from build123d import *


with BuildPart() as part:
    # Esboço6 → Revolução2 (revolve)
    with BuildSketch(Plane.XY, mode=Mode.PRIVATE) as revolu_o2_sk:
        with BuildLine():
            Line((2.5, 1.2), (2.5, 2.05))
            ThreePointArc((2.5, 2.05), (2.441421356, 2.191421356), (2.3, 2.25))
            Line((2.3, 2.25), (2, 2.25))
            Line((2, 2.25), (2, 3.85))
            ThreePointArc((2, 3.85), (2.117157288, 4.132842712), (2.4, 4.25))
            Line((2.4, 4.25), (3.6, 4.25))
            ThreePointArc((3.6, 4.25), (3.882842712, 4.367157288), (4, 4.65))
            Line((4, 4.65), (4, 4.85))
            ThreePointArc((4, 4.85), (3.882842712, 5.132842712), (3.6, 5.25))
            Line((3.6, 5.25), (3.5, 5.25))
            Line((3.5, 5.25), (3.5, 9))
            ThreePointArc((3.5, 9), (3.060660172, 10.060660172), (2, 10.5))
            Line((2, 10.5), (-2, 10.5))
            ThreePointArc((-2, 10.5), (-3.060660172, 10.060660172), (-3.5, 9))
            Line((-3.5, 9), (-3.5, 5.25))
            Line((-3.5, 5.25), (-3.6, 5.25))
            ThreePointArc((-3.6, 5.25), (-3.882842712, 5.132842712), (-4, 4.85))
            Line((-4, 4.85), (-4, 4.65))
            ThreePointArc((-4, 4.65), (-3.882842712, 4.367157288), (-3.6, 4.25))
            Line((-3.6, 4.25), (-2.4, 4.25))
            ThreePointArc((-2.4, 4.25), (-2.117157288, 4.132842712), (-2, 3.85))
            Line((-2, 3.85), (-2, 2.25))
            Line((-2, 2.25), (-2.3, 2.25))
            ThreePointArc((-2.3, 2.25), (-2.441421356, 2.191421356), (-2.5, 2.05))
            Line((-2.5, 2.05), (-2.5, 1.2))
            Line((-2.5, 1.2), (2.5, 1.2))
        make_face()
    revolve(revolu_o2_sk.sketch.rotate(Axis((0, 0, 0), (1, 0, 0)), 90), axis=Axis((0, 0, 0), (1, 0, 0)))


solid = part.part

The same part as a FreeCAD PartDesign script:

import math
import FreeCAD as App
import Part
import Sketcher
Q = App.Units.Quantity

doc = App.newDocument("Part")
params = doc.addObject("Spreadsheet::Sheet", "Params")
for row, (alias, value) in enumerate([
    ("sketch1_radius", "0.2 mm"),
    ("sketch1_radius2", "0.4 mm"),
    ("sketch1_radius3", "1.5 mm"),
    ("sketch1_width", "4 mm"),
    ("sketch1_width2", "5 mm"),
    ("revolution_angle", "360 deg"),
], start=1):
    params.set(f"A{row}", alias)
    params.set(f"B{row}", "=" + value)
    params.setAlias(f"B{row}", alias)

body = doc.addObject("PartDesign::Body", "Body")

sketch1 = doc.addObject("Sketcher::SketchObject", "Sketch")
body.addObject(sketch1)
sketch1.AttachmentSupport = (doc.XY_Plane, [""])
sketch1.MapMode = "FlatFace"
sketch1.addGeometry([
    Part.LineSegment(App.Vector(2.5, 1.2, 0), App.Vector(2.5, 2.05, 0)),
    Part.ArcOfCircle(Part.Circle(App.Vector(2.3, 2.05, 0), App.Vector(0, 0, 1), 0.2), math.radians(0), math.radians(90)),
    Part.LineSegment(App.Vector(2.3, 2.25, 0), App.Vector(2, 2.25, 0)),
    Part.LineSegment(App.Vector(2, 2.25, 0), App.Vector(2, 3.85, 0)),
    Part.ArcOfCircle(Part.Circle(App.Vector(2.4, 3.85, 0), App.Vector(0, 0, 1), 0.4), math.radians(90), math.radians(180)),
    Part.LineSegment(App.Vector(2.4, 4.25, 0), App.Vector(3.6, 4.25, 0)),
    Part.ArcOfCircle(Part.Circle(App.Vector(3.6, 4.65, 0), App.Vector(0, 0, 1), 0.4), math.radians(-90), math.radians(0)),
    Part.LineSegment(App.Vector(4, 4.65, 0), App.Vector(4, 4.85, 0)),
    Part.ArcOfCircle(Part.Circle(App.Vector(3.6, 4.85, 0), App.Vector(0, 0, 1), 0.4), math.radians(0), math.radians(90)),
    Part.LineSegment(App.Vector(3.6, 5.25, 0), App.Vector(3.5, 5.25, 0)),
    Part.LineSegment(App.Vector(3.5, 5.25, 0), App.Vector(3.5, 9, 0)),
    Part.ArcOfCircle(Part.Circle(App.Vector(2, 9, 0), App.Vector(0, 0, 1), 1.5), math.radians(0), math.radians(90)),
    Part.LineSegment(App.Vector(2, 10.5, 0), App.Vector(-2, 10.5, 0)),
    Part.ArcOfCircle(Part.Circle(App.Vector(-2, 9, 0), App.Vector(0, 0, 1), 1.5), math.radians(90), math.radians(180)),
    Part.LineSegment(App.Vector(-3.5, 9, 0), App.Vector(-3.5, 5.25, 0)),
    Part.LineSegment(App.Vector(-3.5, 5.25, 0), App.Vector(-3.6, 5.25, 0)),
    Part.ArcOfCircle(Part.Circle(App.Vector(-3.6, 4.85, 0), App.Vector(0, 0, 1), 0.4), math.radians(90), math.radians(180)),
    Part.LineSegment(App.Vector(-4, 4.85, 0), App.Vector(-4, 4.65, 0)),
    Part.ArcOfCircle(Part.Circle(App.Vector(-3.6, 4.65, 0), App.Vector(0, 0, 1), 0.4), math.radians(-180), math.radians(-90)),
    Part.LineSegment(App.Vector(-3.6, 4.25, 0), App.Vector(-2.4, 4.25, 0)),
    Part.ArcOfCircle(Part.Circle(App.Vector(-2.4, 3.85, 0), App.Vector(0, 0, 1), 0.4), math.radians(0), math.radians(90)),
    Part.LineSegment(App.Vector(-2, 3.85, 0), App.Vector(-2, 2.25, 0)),
    Part.LineSegment(App.Vector(-2, 2.25, 0), App.Vector(-2.3, 2.25, 0)),
    Part.ArcOfCircle(Part.Circle(App.Vector(-2.3, 2.05, 0), App.Vector(0, 0, 1), 0.2), math.radians(90), math.radians(180)),
    Part.LineSegment(App.Vector(-2.5, 2.05, 0), App.Vector(-2.5, 1.2, 0)),
    Part.LineSegment(App.Vector(-2.5, 1.2, 0), App.Vector(2.5, 1.2, 0)),
], False)
sketch1.addConstraint([
    Sketcher.Constraint("Tangent", 0, 2, 1, 1),
    Sketcher.Constraint("Tangent", 1, 2, 2, 1),
    Sketcher.Constraint("Coincident", 2, 2, 3, 1),
    Sketcher.Constraint("Tangent", 3, 2, 4, 2),
    Sketcher.Constraint("Tangent", 4, 1, 5, 1),
    Sketcher.Constraint("Tangent", 5, 2, 6, 1),
    Sketcher.Constraint("Tangent", 6, 2, 7, 1),
    Sketcher.Constraint("Tangent", 7, 2, 8, 1),
    Sketcher.Constraint("Tangent", 8, 2, 9, 1),
    Sketcher.Constraint("Coincident", 9, 2, 10, 1),
    Sketcher.Constraint("Tangent", 10, 2, 11, 1),
    Sketcher.Constraint("Tangent", 11, 2, 12, 1),
    Sketcher.Constraint("Tangent", 12, 2, 13, 1),
    Sketcher.Constraint("Tangent", 13, 2, 14, 1),
    Sketcher.Constraint("Coincident", 14, 2, 15, 1),
    Sketcher.Constraint("Tangent", 15, 2, 16, 1),
    Sketcher.Constraint("Tangent", 16, 2, 17, 1),
    Sketcher.Constraint("Tangent", 17, 2, 18, 1),
    Sketcher.Constraint("Tangent", 18, 2, 19, 1),
    Sketcher.Constraint("Tangent", 19, 2, 20, 2),
    Sketcher.Constraint("Tangent", 20, 1, 21, 1),
    Sketcher.Constraint("Coincident", 21, 2, 22, 1),
    Sketcher.Constraint("Tangent", 22, 2, 23, 1),
    Sketcher.Constraint("Tangent", 23, 2, 24, 1),
    Sketcher.Constraint("Coincident", 24, 2, 25, 1),
    Sketcher.Constraint("Coincident", 25, 2, 0, 1),
    Sketcher.Constraint("Vertical", 0),
    Sketcher.Constraint("Horizontal", 2),
    Sketcher.Constraint("Vertical", 3),
    Sketcher.Constraint("Horizontal", 5),
    Sketcher.Constraint("Vertical", 7),
    Sketcher.Constraint("Horizontal", 9),
    Sketcher.Constraint("Vertical", 10),
    Sketcher.Constraint("Horizontal", 12),
    Sketcher.Constraint("Vertical", 14),
    Sketcher.Constraint("Horizontal", 15),
    Sketcher.Constraint("Vertical", 17),
    Sketcher.Constraint("Horizontal", 19),
    Sketcher.Constraint("Vertical", 21),
    Sketcher.Constraint("Horizontal", 22),
    Sketcher.Constraint("Vertical", 24),
    Sketcher.Constraint("Horizontal", 25),
    Sketcher.Constraint("Equal", 4, 6),
    Sketcher.Constraint("Equal", 6, 8),
    Sketcher.Constraint("Equal", 11, 13),
    Sketcher.Constraint("Equal", 8, 16),
    Sketcher.Constraint("Equal", 16, 18),
    Sketcher.Constraint("Equal", 18, 20),
    Sketcher.Constraint("Equal", 1, 23),
    Sketcher.Constraint("Symmetric", 8, 3, 16, 3, -2),
    Sketcher.Constraint("Symmetric", 4, 3, 20, 3, -2),
    Sketcher.Constraint("Symmetric", 1, 3, 23, 3, -2),
    Sketcher.Constraint("Vertical", 11, 3, 2, 2),
    Sketcher.Constraint("Vertical", 12, 2, 20, 1),
    Sketcher.Constraint("Radius", 1, Q("0.2 mm")),
    Sketcher.Constraint("Radius", 4, Q("0.4 mm")),
    Sketcher.Constraint("Radius", 11, Q("1.5 mm")),
    Sketcher.Constraint("DistanceX", 12, 2, 12, 1, Q("4 mm")),
    Sketcher.Constraint("DistanceX", 25, 1, 25, 2, Q("5 mm")),
    Sketcher.Constraint("DistanceX", 5, 1, 5, 2, Q("1.2 mm")),
    Sketcher.Constraint("DistanceY", 3, 1, 3, 2, Q("1.6 mm")),
    Sketcher.Constraint("DistanceY", 7, 1, 7, 2, Q("0.2 mm")),
    Sketcher.Constraint("DistanceY", -1, 1, 11, 3, Q("9 mm")),
    Sketcher.Constraint("DistanceY", 0, 1, 0, 2, Q("0.85 mm")),
    Sketcher.Constraint("DistanceY", 10, 1, 10, 2, Q("3.75 mm")),
])
sketch1.setExpression("Constraints[54]", "Params.sketch1_radius")
sketch1.setExpression("Constraints[55]", "Params.sketch1_radius2")
sketch1.setExpression("Constraints[56]", "Params.sketch1_radius3")
sketch1.setExpression("Constraints[57]", "Params.sketch1_width")
sketch1.setExpression("Constraints[58]", "Params.sketch1_width2")
revolution = doc.addObject("PartDesign::Revolution", "Revolution")
body.addObject(revolution)
revolution.Profile = sketch1
revolution.ReferenceAxis = (sketch1, ["H_Axis"])
revolution.setExpression("Angle", "Params.revolution_angle")

doc.recompute()
